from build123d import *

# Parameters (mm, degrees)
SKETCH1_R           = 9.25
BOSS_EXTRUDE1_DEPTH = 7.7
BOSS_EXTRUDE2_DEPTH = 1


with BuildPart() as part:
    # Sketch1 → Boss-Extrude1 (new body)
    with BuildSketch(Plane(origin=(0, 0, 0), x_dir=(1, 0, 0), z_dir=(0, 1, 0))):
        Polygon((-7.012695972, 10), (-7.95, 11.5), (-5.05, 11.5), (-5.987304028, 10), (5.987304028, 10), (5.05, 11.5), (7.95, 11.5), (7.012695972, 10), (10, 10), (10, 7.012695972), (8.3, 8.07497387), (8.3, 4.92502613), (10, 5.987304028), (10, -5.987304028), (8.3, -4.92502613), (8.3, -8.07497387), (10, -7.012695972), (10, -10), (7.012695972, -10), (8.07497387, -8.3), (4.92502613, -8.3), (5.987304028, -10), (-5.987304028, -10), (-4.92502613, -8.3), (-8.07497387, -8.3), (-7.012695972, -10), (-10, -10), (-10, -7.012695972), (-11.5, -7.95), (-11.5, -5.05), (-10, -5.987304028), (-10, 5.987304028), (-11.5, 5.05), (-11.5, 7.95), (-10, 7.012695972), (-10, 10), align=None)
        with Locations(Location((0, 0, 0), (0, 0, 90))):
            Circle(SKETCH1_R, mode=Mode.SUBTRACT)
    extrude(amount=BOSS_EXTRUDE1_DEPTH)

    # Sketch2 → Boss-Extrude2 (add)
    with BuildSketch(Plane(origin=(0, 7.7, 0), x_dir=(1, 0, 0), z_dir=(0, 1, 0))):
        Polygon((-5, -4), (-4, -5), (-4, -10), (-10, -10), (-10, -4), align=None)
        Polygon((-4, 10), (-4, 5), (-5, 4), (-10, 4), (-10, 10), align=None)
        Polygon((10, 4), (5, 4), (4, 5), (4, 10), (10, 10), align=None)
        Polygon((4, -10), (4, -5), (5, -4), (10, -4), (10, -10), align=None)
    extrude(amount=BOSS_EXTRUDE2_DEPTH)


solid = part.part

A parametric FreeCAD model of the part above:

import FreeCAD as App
import Part
import Sketcher

V = App.Vector
Q = App.Units.Quantity

doc = App.newDocument("Part")
body = doc.addObject("PartDesign::Body", "Body")

# Sketch on XZ plane
sketch1 = body.newObject("Sketcher::SketchObject", "Sketch")
sketch1.AttachmentSupport = (doc.getObject("XZ_Plane"), [""])
sketch1.MapMode = "FlatFace"
sketch1.addGeometry(Part.LineSegment(V(-8, -11.5, 0), V(-7, -10, 0)), False)
sketch1.addGeometry(Part.LineSegment(V(-7, -10, 0), V(-10, -10, 0)), False)
sketch1.addGeometry(Part.LineSegment(V(-10, -10, 0), V(-10, -7, 0)), False)
sketch1.addGeometry(Part.LineSegment(V(-10, -7, 0), V(-11.5, -8, 0)), False)
sketch1.addGeometry(Part.LineSegment(V(-11.5, -8, 0), V(-11.5, -5, 0)), False)
sketch1.addGeometry(Part.LineSegment(V(-11.5, -5, 0), V(-10, -6, 0)), False)
sketch1.addGeometry(Part.LineSegment(V(-10, -6, 0), V(-10, 6, 0)), False)
sketch1.addGeometry(Part.LineSegment(V(-10, 6, 0), V(-11.5, 5, 0)), False)
sketch1.addGeometry(Part.LineSegment(V(-11.5, 5, 0), V(-11.5, 8, 0)), False)
sketch1.addGeometry(Part.LineSegment(V(-11.5, 8, 0), V(-10, 7, 0)), False)
sketch1.addGeometry(Part.LineSegment(V(-10, 7, 0), V(-10, 10, 0)), False)
sketch1.addGeometry(Part.LineSegment(V(-10, 10, 0), V(-7, 10, 0)), False)
sketch1.addGeometry(Part.LineSegment(V(-7, 10, 0), V(-8.1, 8.3, 0)), False)
sketch1.addGeometry(Part.LineSegment(V(-8.1, 8.3, 0), V(-4.9, 8.3, 0)), False)
sketch1.addGeometry(Part.LineSegment(V(-4.9, 8.3, 0), V(-6, 10, 0)), False)
sketch1.addGeometry(Part.LineSegment(V(-6, 10, 0), V(6, 10, 0)), False)
sketch1.addGeometry(Part.LineSegment(V(6, 10, 0), V(4.9, 8.3, 0)), False)
sketch1.addGeometry(Part.LineSegment(V(4.9, 8.3, 0), V(8.1, 8.3, 0)), False)
sketch1.addGeometry(Part.LineSegment(V(8.1, 8.3, 0), V(7, 10, 0)), False)
sketch1.addGeometry(Part.LineSegment(V(7, 10, 0), V(10, 10, 0)), False)
sketch1.addGeometry(Part.LineSegment(V(10, 10, 0), V(10, 7, 0)), False)
sketch1.addGeometry(Part.LineSegment(V(10, 7, 0), V(8.3, 8.1, 0)), False)
sketch1.addGeometry(Part.LineSegment(V(8.3, 8.1, 0), V(8.3, 4.9, 0)), False)
sketch1.addGeometry(Part.LineSegment(V(8.3, 4.9, 0), V(10, 6, 0)), False)
sketch1.addGeometry(Part.LineSegment(V(10, 6, 0), V(10, -6, 0)), False)
sketch1.addGeometry(Part.LineSegment(V(10, -6, 0), V(8.3, -4.9, 0)), False)
sketch1.addGeometry(Part.LineSegment(V(8.3, -4.9, 0), V(8.3, -8.1, 0)), False)
sketch1.addGeometry(Part.LineSegment(V(8.3, -8.1, 0), V(10, -7, 0)), False)
sketch1.addGeometry(Part.LineSegment(V(10, -7, 0), V(10, -10, 0)), False)
sketch1.addGeometry(Part.LineSegment(V(10, -10, 0), V(7, -10, 0)), False)
sketch1.addGeometry(Part.LineSegment(V(7, -10, 0), V(8, -11.5, 0)), False)
sketch1.addGeometry(Part.LineSegment(V(8, -11.5, 0), V(5, -11.5, 0)), False)
sketch1.addGeometry(Part.LineSegment(V(5, -11.5, 0), V(6, -10, 0)), False)
sketch1.addGeometry(Part.LineSegment(V(6, -10, 0), V(-6, -10, 0)), False)
sketch1.addGeometry(Part.LineSegment(V(-6, -10, 0), V(-5, -11.5, 0)), False)
sketch1.addGeometry(Part.LineSegment(V(-5, -11.5, 0), V(-8, -11.5, 0)), False)
sketch1.addGeometry(Part.Circle(V(0, 0, 0), V(0, 0, 1), 9.2), False)
sketch1.addConstraint(Sketcher.Constraint("Coincident", 0, 2, 1, 1))
sketch1.addConstraint(Sketcher.Constraint("Coincident", 1, 2, 2, 1))
sketch1.addConstraint(Sketcher.Constraint("Coincident", 2, 2, 3, 1))
sketch1.addConstraint(Sketcher.Constraint("Coincident", 3, 2, 4, 1))
sketch1.addConstraint(Sketcher.Constraint("Coincident", 4, 2, 5, 1))
sketch1.addConstraint(Sketcher.Constraint("Coincident", 5, 2, 6, 1))
sketch1.addConstraint(Sketcher.Constraint("Coincident", 6, 2, 7, 1))
sketch1.addConstraint(Sketcher.Constraint("Coincident", 7, 2, 8, 1))
sketch1.addConstraint(Sketcher.Constraint("Coincident", 8, 2, 9, 1))
sketch1.addConstraint(Sketcher.Constraint("Coincident", 9, 2, 10, 1))
sketch1.addConstraint(Sketcher.Constraint("Coincident", 10, 2, 11, 1))
sketch1.addConstraint(Sketcher.Constraint("Coincident", 11, 2, 12, 1))
sketch1.addConstraint(Sketcher.Constraint("Coincident", 12, 2, 13, 1))
sketch1.addConstraint(Sketcher.Constraint("Coincident", 13, 2, 14, 1))
sketch1.addConstraint(Sketcher.Constraint("Coincident", 14, 2, 15, 1))
sketch1.addConstraint(Sketcher.Constraint("Coincident", 15, 2, 16, 1))
sketch1.addConstraint(Sketcher.Constraint("Coincident", 16, 2, 17, 1))
sketch1.addConstraint(Sketcher.Constraint("Coincident", 17, 2, 18, 1))
sketch1.addConstraint(Sketcher.Constraint("Coincident", 18, 2, 19, 1))
sketch1.addConstraint(Sketcher.Constraint("Coincident", 19, 2, 20, 1))
sketch1.addConstraint(Sketcher.Constraint("Coincident", 20, 2, 21, 1))
sketch1.addConstraint(Sketcher.Constraint("Coincident", 21, 2, 22, 1))
sketch1.addConstraint(Sketcher.Constraint("Coincident", 22, 2, 23, 1))
sketch1.addConstraint(Sketcher.Constraint("Coincident", 23, 2, 24, 1))
sketch1.addConstraint(Sketcher.Constraint("Coincident", 24, 2, 25, 1))
sketch1.addConstraint(Sketcher.Constraint("Coincident", 25, 2, 26, 1))
sketch1.addConstraint(Sketcher.Constraint("Coincident", 26, 2, 27, 1))
sketch1.addConstraint(Sketcher.Constraint("Coincident", 27, 2, 28, 1))
sketch1.addConstraint(Sketcher.Constraint("Coincident", 28, 2, 29, 1))
sketch1.addConstraint(Sketcher.Constraint("Coincident", 29, 2, 30, 1))
sketch1.addConstraint(Sketcher.Constraint("Coincident", 30, 2, 31, 1))
sketch1.addConstraint(Sketcher.Constraint("Coincident", 31, 2, 32, 1))
sketch1.addConstraint(Sketcher.Constraint("Coincident", 32, 2, 33, 1))
sketch1.addConstraint(Sketcher.Constraint("Coincident", 33, 2, 34, 1))
sketch1.addConstraint(Sketcher.Constraint("Coincident", 34, 2, 35, 1))
sketch1.addConstraint(Sketcher.Constraint("Coincident", 35, 2, 0, 1))
sketch1.addConstraint(Sketcher.Constraint("Horizontal", 1))
sketch1.addConstraint(Sketcher.Constraint("Vertical", 2))
sketch1.addConstraint(Sketcher.Constraint("Vertical", 4))
sketch1.addConstraint(Sketcher.Constraint("Vertical", 6))
sketch1.addConstraint(Sketcher.Constraint("Vertical", 8))
sketch1.addConstraint(Sketcher.Constraint("Vertical", 10))
sketch1.addConstraint(Sketcher.Constraint("Horizontal", 11))
sketch1.addConstraint(Sketcher.Constraint("Horizontal", 13))
sketch1.addConstraint(Sketcher.Constraint("Horizontal", 15))
sketch1.addConstraint(Sketcher.Constraint("Horizontal", 17))
sketch1.addConstraint(Sketcher.Constraint("Horizontal", 19))
sketch1.addConstraint(Sketcher.Constraint("Vertical", 20))
sketch1.addConstraint(Sketcher.Constraint("Vertical", 22))
sketch1.addConstraint(Sketcher.Constraint("Vertical", 24))
sketch1.addConstraint(Sketcher.Constraint("Vertical", 26))
sketch1.addConstraint(Sketcher.Constraint("Vertical", 28))
sketch1.addConstraint(Sketcher.Constraint("Horizontal", 29))
sketch1.addConstraint(Sketcher.Constraint("Horizontal", 31))
sketch1.addConstraint(Sketcher.Constraint("Horizontal", 33))
sketch1.addConstraint(Sketcher.Constraint("Horizontal", 35))
sketch1.addConstraint(Sketcher.Constraint("Coincident", 36, 3, -1, 1))
sketch1.addConstraint(Sketcher.Constraint("Symmetric", 0, 2, 18, 2, -1, 1))
sketch1.addConstraint(Sketcher.Constraint("Symmetric", 2, 2, 20, 2, -1, 1))
sketch1.addConstraint(Sketcher.Constraint("Symmetric", 5, 2, 23, 2, -1, 1))
sketch1.addConstraint(Sketcher.Constraint("Symmetric", 9, 2, 27, 2, -1, 1))
sketch1.addConstraint(Sketcher.Constraint("Symmetric", 11, 2, 29, 2, -1, 1))
sketch1.addConstraint(Sketcher.Constraint("Symmetric", 14, 2, 32, 2, -1, 1))
sketch1.addConstraint(Sketcher.Constraint("Symmetric", 13, 2, 16, 2, -2))
sketch1.addConstraint(Sketcher.Constraint("Symmetric", 11, 2, 18, 2, -2))
sketch1.addConstraint(Sketcher.Constraint("Symmetric", 9, 2, 20, 2, -2))
sketch1.addConstraint(Sketcher.Constraint("Symmetric", 31, 2, 34, 2, -2))
sketch1.addConstraint(Sketcher.Constraint("Symmetric", 4, 2, 7, 2, -1))
sketch1.addConstraint(Sketcher.Constraint("Symmetric", 22, 2, 25, 2, -1))
sketch1.addConstraint(Sketcher.Constraint("Perpendicular", 0, 5))
sketch1.addConstraint(Sketcher.Constraint("Parallel", 3, 7))
sketch1.addConstraint(Sketcher.Constraint("Parallel", 5, 9))
sketch1.addConstraint(Sketcher.Constraint("Perpendicular", 9, 12))
sketch1.addConstraint(Sketcher.Constraint("Perpendicular", 7, 14))
sketch1.addConstraint(Sketcher.Constraint("Parallel", 12, 16))
sketch1.addConstraint(Sketcher.Constraint("Parallel", 14, 18))
sketch1.addConstraint(Sketcher.Constraint("Perpendicular", 16, 21))
sketch1.addConstraint(Sketcher.Constraint("Perpendicular", 18, 23))
sketch1.addConstraint(Sketcher.Constraint("Parallel", 21, 25))
sketch1.addConstraint(Sketcher.Constraint("Parallel", 23, 27))
sketch1.addConstraint(Sketcher.Constraint("Perpendicular", 27, 30))
sketch1.addConstraint(Sketcher.Constraint("Perpendicular", 25, 32))
sketch1.addConstraint(Sketcher.Constraint("Parallel", 30, 34))
sketch1.addConstraint(Sketcher.Constraint("Horizontal", 11, 2, 14, 2))
sketch1.addConstraint(Sketcher.Constraint("Horizontal", 6, 2, 23, 2))
sketch1.addConstraint(Sketcher.Constraint("Vertical", 2, 2, 5, 2))
sketch1.addConstraint(Sketcher.Constraint("Equal", 29, 2))
sketch1.addConstraint(Sketcher.Constraint("Equal", 35, 4))
sketch1.addConstraint(Sketcher.Constraint("Equal", 33, 6))
sketch1.addConstraint(Sketcher.Constraint("Equal", 17, 22))
sketch1.addConstraint(Sketcher.Constraint("Equal", 0, 3))
sketch1.addConstraint(Sketcher.Constraint("Diameter", 36, Q("18.5 mm")))
sketch1.addConstraint(Sketcher.Constraint("Angle", 0, Q("58 deg")))
sketch1.addConstraint(Sketcher.Constraint("DistanceX", 31, 2, 31, 1, Q("2.9 mm")))
sketch1.addConstraint(Sketcher.Constraint("DistanceY", 0, 2, -1, 1, Q("10 mm")))
sketch1.addConstraint(Sketcher.Constraint("DistanceY", 2, 2, 6, 2, Q("13 mm")))
sketch1.addConstraint(Sketcher.Constraint("DistanceX", 3, 2, -1, 1, Q("11.5 mm")))
sketch1.addConstraint(Sketcher.Constraint("DistanceY", -1, 1, 12, 2, Q("8.3 mm")))
pad1 = body.newObject("PartDesign::Pad", "Pad")
pad1.Profile = sketch1
pad1.Length = 7.7
pad1.Reversed = True

# Sketch on XZ plane
sketch2 = body.newObject("Sketcher::SketchObject", "Sketch001")
sketch2.AttachmentSupport = (doc.getObject("XZ_Plane"), [""])
sketch2.MapMode = "FlatFace"
sketch2.AttachmentOffset = App.Placement(V(0, 0, -7.7), App.Rotation())
sketch2.addGeometry(Part.LineSegment(V(-4, 5, 0), V(-5, 4, 0)), False)
sketch2.addGeometry(Part.LineSegment(V(-5, 4, 0), V(-10, 4, 0)), False)
sketch2.addGeometry(Part.LineSegment(V(-10, 4, 0), V(-10, 10, 0)), False)
sketch2.addGeometry(Part.LineSegment(V(-10, 10, 0), V(-4, 10, 0)), False)
sketch2.addGeometry(Part.LineSegment(V(-4, 10, 0), V(-4, 5, 0)), False)
sketch2.addGeometry(Part.LineSegment(V(-4, -5, 0), V(-4, -10, 0)), False)
sketch2.addGeometry(Part.LineSegment(V(-4, -10, 0), V(-10, -10, 0)), False)
sketch2.addGeometry(Part.LineSegment(V(-10, -10, 0), V(-10, -4, 0)), False)
sketch2.addGeometry(Part.LineSegment(V(-10, -4, 0), V(-5, -4, 0)), False)
sketch2.addGeometry(Part.LineSegment(V(-5, -4, 0), V(-4, -5, 0)), False)
sketch2.addGeometry(Part.LineSegment(V(5, -4, 0), V(10, -4, 0)), False)
sketch2.addGeometry(Part.LineSegment(V(10, -4, 0), V(10, -10, 0)), False)
sketch2.addGeometry(Part.LineSegment(V(10, -10, 0), V(4, -10, 0)), False)
sketch2.addGeometry(Part.LineSegment(V(4, -10, 0), V(4, -5, 0)), False)
sketch2.addGeometry(Part.LineSegment(V(4, -5, 0), V(5, -4, 0)), False)
sketch2.addGeometry(Part.LineSegment(V(4, 5, 0), V(4, 10, 0)), False)
sketch2.addGeometry(Part.LineSegment(V(4, 10, 0), V(10, 10, 0)), False)
sketch2.addGeometry(Part.LineSegment(V(10, 10, 0), V(10, 4, 0)), False)
sketch2.addGeometry(Part.LineSegment(V(10, 4, 0), V(5, 4, 0)), False)
sketch2.addGeometry(Part.LineSegment(V(5, 4, 0), V(4, 5, 0)), False)
sketch2.addConstraint(Sketcher.Constraint("Coincident", 0, 2, 1, 1))
sketch2.addConstraint(Sketcher.Constraint("Coincident", 1, 2, 2, 1))
sketch2.addConstraint(Sketcher.Constraint("Coincident", 2, 2, 3, 1))
sketch2.addConstraint(Sketcher.Constraint("Coincident", 3, 2, 4, 1))
sketch2.addConstraint(Sketcher.Constraint("Coincident", 4, 2, 0, 1))
sketch2.addConstraint(Sketcher.Constraint("Coincident", 5, 2, 6, 1))
sketch2.addConstraint(Sketcher.Constraint("Coincident", 6, 2, 7, 1))
sketch2.addConstraint(Sketcher.Constraint("Coincident", 7, 2, 8, 1))
sketch2.addConstraint(Sketcher.Constraint("Coincident", 8, 2, 9, 1))
sketch2.addConstraint(Sketcher.Constraint("Coincident", 9, 2, 5, 1))
sketch2.addConstraint(Sketcher.Constraint("Coincident", 10, 2, 11, 1))
sketch2.addConstraint(Sketcher.Constraint("Coincident", 11, 2, 12, 1))
sketch2.addConstraint(Sketcher.Constraint("Coincident", 12, 2, 13, 1))
sketch2.addConstraint(Sketcher.Constraint("Coincident", 13, 2, 14, 1))
sketch2.addConstraint(Sketcher.Constraint("Coincident", 14, 2, 10, 1))
sketch2.addConstraint(Sketcher.Constraint("Coincident", 15, 2, 16, 1))
sketch2.addConstraint(Sketcher.Constraint("Coincident", 16, 2, 17, 1))
sketch2.addConstraint(Sketcher.Constraint("Coincident", 17, 2, 18, 1))
sketch2.addConstraint(Sketcher.Constraint("Coincident", 18, 2, 19, 1))
sketch2.addConstraint(Sketcher.Constraint("Coincident", 19, 2, 15, 1))
sketch2.addConstraint(Sketcher.Constraint("Horizontal", 1))
sketch2.addConstraint(Sketcher.Constraint("Vertical", 2))
sketch2.addConstraint(Sketcher.Constraint("Horizontal", 3))
sketch2.addConstraint(Sketcher.Constraint("Vertical", 4))
sketch2.addConstraint(Sketcher.Constraint("Vertical", 5))
sketch2.addConstraint(Sketcher.Constraint("Horizontal", 6))
sketch2.addConstraint(Sketcher.Constraint("Vertical", 7))
sketch2.addConstraint(Sketcher.Constraint("Horizontal", 8))
sketch2.addConstraint(Sketcher.Constraint("Horizontal", 10))
sketch2.addConstraint(Sketcher.Constraint("Vertical", 11))
sketch2.addConstraint(Sketcher.Constraint("Horizontal", 12))
sketch2.addConstraint(Sketcher.Constraint("Vertical", 13))
sketch2.addConstraint(Sketcher.Constraint("Vertical", 15))
sketch2.addConstraint(Sketcher.Constraint("Horizontal", 16))
sketch2.addConstraint(Sketcher.Constraint("Vertical", 17))
sketch2.addConstraint(Sketcher.Constraint("Horizontal", 18))
sketch2.addConstraint(Sketcher.Constraint("Symmetric", 1, 2, 10, 2, -1, 1))
sketch2.addConstraint(Sketcher.Constraint("Symmetric", 3, 2, 12, 2, -1, 1))
sketch2.addConstraint(Sketcher.Constraint("Symmetric", 5, 2, 15, 2, -1, 1))
sketch2.addConstraint(Sketcher.Constraint("Symmetric", 7, 2, 17, 2, -1, 1))
sketch2.addConstraint(Sketcher.Constraint("Symmetric", 7, 2, 10, 2, -2))
sketch2.addConstraint(Sketcher.Constraint("Symmetric", 5, 2, 12, 2, -2))
sketch2.addConstraint(Sketcher.Constraint("Perpendicular", 0, 9))
sketch2.addConstraint(Sketcher.Constraint("Perpendicular", 9, 14))
sketch2.addConstraint(Sketcher.Constraint("Perpendicular", 14, 19))
sketch2.addConstraint(Sketcher.Constraint("Horizontal", 9, 2, 13, 2))
sketch2.addConstraint(Sketcher.Constraint("Horizontal", 4, 2, 19, 2))
sketch2.addConstraint(Sketcher.Constraint("Vertical", 0, 2, 8, 2))
sketch2.addConstraint(Sketcher.Constraint("Vertical", 14, 2, 18, 2))
sketch2.addConstraint(Sketcher.Constraint("Equal", 16, 2))
sketch2.addConstraint(Sketcher.Constraint("DistanceX", 1, 2, 1, 1, Q("5 mm")))
sketch2.addConstraint(Sketcher.Constraint("DistanceX", 3, 1, 3, 2, Q("6 mm")))
sketch2.addConstraint(Sketcher.Constraint("DistanceX", 0, 2, -1, 1, Q("5 mm")))
sketch2.addConstraint(Sketcher.Constraint("DistanceY", -1, 1, 0, 2, Q("4 mm")))
pad2 = body.newObject("PartDesign::Pad", "Pad001")
pad2.Profile = sketch2
pad2.Length = 1
pad2.Reversed = True

doc.recompute()
